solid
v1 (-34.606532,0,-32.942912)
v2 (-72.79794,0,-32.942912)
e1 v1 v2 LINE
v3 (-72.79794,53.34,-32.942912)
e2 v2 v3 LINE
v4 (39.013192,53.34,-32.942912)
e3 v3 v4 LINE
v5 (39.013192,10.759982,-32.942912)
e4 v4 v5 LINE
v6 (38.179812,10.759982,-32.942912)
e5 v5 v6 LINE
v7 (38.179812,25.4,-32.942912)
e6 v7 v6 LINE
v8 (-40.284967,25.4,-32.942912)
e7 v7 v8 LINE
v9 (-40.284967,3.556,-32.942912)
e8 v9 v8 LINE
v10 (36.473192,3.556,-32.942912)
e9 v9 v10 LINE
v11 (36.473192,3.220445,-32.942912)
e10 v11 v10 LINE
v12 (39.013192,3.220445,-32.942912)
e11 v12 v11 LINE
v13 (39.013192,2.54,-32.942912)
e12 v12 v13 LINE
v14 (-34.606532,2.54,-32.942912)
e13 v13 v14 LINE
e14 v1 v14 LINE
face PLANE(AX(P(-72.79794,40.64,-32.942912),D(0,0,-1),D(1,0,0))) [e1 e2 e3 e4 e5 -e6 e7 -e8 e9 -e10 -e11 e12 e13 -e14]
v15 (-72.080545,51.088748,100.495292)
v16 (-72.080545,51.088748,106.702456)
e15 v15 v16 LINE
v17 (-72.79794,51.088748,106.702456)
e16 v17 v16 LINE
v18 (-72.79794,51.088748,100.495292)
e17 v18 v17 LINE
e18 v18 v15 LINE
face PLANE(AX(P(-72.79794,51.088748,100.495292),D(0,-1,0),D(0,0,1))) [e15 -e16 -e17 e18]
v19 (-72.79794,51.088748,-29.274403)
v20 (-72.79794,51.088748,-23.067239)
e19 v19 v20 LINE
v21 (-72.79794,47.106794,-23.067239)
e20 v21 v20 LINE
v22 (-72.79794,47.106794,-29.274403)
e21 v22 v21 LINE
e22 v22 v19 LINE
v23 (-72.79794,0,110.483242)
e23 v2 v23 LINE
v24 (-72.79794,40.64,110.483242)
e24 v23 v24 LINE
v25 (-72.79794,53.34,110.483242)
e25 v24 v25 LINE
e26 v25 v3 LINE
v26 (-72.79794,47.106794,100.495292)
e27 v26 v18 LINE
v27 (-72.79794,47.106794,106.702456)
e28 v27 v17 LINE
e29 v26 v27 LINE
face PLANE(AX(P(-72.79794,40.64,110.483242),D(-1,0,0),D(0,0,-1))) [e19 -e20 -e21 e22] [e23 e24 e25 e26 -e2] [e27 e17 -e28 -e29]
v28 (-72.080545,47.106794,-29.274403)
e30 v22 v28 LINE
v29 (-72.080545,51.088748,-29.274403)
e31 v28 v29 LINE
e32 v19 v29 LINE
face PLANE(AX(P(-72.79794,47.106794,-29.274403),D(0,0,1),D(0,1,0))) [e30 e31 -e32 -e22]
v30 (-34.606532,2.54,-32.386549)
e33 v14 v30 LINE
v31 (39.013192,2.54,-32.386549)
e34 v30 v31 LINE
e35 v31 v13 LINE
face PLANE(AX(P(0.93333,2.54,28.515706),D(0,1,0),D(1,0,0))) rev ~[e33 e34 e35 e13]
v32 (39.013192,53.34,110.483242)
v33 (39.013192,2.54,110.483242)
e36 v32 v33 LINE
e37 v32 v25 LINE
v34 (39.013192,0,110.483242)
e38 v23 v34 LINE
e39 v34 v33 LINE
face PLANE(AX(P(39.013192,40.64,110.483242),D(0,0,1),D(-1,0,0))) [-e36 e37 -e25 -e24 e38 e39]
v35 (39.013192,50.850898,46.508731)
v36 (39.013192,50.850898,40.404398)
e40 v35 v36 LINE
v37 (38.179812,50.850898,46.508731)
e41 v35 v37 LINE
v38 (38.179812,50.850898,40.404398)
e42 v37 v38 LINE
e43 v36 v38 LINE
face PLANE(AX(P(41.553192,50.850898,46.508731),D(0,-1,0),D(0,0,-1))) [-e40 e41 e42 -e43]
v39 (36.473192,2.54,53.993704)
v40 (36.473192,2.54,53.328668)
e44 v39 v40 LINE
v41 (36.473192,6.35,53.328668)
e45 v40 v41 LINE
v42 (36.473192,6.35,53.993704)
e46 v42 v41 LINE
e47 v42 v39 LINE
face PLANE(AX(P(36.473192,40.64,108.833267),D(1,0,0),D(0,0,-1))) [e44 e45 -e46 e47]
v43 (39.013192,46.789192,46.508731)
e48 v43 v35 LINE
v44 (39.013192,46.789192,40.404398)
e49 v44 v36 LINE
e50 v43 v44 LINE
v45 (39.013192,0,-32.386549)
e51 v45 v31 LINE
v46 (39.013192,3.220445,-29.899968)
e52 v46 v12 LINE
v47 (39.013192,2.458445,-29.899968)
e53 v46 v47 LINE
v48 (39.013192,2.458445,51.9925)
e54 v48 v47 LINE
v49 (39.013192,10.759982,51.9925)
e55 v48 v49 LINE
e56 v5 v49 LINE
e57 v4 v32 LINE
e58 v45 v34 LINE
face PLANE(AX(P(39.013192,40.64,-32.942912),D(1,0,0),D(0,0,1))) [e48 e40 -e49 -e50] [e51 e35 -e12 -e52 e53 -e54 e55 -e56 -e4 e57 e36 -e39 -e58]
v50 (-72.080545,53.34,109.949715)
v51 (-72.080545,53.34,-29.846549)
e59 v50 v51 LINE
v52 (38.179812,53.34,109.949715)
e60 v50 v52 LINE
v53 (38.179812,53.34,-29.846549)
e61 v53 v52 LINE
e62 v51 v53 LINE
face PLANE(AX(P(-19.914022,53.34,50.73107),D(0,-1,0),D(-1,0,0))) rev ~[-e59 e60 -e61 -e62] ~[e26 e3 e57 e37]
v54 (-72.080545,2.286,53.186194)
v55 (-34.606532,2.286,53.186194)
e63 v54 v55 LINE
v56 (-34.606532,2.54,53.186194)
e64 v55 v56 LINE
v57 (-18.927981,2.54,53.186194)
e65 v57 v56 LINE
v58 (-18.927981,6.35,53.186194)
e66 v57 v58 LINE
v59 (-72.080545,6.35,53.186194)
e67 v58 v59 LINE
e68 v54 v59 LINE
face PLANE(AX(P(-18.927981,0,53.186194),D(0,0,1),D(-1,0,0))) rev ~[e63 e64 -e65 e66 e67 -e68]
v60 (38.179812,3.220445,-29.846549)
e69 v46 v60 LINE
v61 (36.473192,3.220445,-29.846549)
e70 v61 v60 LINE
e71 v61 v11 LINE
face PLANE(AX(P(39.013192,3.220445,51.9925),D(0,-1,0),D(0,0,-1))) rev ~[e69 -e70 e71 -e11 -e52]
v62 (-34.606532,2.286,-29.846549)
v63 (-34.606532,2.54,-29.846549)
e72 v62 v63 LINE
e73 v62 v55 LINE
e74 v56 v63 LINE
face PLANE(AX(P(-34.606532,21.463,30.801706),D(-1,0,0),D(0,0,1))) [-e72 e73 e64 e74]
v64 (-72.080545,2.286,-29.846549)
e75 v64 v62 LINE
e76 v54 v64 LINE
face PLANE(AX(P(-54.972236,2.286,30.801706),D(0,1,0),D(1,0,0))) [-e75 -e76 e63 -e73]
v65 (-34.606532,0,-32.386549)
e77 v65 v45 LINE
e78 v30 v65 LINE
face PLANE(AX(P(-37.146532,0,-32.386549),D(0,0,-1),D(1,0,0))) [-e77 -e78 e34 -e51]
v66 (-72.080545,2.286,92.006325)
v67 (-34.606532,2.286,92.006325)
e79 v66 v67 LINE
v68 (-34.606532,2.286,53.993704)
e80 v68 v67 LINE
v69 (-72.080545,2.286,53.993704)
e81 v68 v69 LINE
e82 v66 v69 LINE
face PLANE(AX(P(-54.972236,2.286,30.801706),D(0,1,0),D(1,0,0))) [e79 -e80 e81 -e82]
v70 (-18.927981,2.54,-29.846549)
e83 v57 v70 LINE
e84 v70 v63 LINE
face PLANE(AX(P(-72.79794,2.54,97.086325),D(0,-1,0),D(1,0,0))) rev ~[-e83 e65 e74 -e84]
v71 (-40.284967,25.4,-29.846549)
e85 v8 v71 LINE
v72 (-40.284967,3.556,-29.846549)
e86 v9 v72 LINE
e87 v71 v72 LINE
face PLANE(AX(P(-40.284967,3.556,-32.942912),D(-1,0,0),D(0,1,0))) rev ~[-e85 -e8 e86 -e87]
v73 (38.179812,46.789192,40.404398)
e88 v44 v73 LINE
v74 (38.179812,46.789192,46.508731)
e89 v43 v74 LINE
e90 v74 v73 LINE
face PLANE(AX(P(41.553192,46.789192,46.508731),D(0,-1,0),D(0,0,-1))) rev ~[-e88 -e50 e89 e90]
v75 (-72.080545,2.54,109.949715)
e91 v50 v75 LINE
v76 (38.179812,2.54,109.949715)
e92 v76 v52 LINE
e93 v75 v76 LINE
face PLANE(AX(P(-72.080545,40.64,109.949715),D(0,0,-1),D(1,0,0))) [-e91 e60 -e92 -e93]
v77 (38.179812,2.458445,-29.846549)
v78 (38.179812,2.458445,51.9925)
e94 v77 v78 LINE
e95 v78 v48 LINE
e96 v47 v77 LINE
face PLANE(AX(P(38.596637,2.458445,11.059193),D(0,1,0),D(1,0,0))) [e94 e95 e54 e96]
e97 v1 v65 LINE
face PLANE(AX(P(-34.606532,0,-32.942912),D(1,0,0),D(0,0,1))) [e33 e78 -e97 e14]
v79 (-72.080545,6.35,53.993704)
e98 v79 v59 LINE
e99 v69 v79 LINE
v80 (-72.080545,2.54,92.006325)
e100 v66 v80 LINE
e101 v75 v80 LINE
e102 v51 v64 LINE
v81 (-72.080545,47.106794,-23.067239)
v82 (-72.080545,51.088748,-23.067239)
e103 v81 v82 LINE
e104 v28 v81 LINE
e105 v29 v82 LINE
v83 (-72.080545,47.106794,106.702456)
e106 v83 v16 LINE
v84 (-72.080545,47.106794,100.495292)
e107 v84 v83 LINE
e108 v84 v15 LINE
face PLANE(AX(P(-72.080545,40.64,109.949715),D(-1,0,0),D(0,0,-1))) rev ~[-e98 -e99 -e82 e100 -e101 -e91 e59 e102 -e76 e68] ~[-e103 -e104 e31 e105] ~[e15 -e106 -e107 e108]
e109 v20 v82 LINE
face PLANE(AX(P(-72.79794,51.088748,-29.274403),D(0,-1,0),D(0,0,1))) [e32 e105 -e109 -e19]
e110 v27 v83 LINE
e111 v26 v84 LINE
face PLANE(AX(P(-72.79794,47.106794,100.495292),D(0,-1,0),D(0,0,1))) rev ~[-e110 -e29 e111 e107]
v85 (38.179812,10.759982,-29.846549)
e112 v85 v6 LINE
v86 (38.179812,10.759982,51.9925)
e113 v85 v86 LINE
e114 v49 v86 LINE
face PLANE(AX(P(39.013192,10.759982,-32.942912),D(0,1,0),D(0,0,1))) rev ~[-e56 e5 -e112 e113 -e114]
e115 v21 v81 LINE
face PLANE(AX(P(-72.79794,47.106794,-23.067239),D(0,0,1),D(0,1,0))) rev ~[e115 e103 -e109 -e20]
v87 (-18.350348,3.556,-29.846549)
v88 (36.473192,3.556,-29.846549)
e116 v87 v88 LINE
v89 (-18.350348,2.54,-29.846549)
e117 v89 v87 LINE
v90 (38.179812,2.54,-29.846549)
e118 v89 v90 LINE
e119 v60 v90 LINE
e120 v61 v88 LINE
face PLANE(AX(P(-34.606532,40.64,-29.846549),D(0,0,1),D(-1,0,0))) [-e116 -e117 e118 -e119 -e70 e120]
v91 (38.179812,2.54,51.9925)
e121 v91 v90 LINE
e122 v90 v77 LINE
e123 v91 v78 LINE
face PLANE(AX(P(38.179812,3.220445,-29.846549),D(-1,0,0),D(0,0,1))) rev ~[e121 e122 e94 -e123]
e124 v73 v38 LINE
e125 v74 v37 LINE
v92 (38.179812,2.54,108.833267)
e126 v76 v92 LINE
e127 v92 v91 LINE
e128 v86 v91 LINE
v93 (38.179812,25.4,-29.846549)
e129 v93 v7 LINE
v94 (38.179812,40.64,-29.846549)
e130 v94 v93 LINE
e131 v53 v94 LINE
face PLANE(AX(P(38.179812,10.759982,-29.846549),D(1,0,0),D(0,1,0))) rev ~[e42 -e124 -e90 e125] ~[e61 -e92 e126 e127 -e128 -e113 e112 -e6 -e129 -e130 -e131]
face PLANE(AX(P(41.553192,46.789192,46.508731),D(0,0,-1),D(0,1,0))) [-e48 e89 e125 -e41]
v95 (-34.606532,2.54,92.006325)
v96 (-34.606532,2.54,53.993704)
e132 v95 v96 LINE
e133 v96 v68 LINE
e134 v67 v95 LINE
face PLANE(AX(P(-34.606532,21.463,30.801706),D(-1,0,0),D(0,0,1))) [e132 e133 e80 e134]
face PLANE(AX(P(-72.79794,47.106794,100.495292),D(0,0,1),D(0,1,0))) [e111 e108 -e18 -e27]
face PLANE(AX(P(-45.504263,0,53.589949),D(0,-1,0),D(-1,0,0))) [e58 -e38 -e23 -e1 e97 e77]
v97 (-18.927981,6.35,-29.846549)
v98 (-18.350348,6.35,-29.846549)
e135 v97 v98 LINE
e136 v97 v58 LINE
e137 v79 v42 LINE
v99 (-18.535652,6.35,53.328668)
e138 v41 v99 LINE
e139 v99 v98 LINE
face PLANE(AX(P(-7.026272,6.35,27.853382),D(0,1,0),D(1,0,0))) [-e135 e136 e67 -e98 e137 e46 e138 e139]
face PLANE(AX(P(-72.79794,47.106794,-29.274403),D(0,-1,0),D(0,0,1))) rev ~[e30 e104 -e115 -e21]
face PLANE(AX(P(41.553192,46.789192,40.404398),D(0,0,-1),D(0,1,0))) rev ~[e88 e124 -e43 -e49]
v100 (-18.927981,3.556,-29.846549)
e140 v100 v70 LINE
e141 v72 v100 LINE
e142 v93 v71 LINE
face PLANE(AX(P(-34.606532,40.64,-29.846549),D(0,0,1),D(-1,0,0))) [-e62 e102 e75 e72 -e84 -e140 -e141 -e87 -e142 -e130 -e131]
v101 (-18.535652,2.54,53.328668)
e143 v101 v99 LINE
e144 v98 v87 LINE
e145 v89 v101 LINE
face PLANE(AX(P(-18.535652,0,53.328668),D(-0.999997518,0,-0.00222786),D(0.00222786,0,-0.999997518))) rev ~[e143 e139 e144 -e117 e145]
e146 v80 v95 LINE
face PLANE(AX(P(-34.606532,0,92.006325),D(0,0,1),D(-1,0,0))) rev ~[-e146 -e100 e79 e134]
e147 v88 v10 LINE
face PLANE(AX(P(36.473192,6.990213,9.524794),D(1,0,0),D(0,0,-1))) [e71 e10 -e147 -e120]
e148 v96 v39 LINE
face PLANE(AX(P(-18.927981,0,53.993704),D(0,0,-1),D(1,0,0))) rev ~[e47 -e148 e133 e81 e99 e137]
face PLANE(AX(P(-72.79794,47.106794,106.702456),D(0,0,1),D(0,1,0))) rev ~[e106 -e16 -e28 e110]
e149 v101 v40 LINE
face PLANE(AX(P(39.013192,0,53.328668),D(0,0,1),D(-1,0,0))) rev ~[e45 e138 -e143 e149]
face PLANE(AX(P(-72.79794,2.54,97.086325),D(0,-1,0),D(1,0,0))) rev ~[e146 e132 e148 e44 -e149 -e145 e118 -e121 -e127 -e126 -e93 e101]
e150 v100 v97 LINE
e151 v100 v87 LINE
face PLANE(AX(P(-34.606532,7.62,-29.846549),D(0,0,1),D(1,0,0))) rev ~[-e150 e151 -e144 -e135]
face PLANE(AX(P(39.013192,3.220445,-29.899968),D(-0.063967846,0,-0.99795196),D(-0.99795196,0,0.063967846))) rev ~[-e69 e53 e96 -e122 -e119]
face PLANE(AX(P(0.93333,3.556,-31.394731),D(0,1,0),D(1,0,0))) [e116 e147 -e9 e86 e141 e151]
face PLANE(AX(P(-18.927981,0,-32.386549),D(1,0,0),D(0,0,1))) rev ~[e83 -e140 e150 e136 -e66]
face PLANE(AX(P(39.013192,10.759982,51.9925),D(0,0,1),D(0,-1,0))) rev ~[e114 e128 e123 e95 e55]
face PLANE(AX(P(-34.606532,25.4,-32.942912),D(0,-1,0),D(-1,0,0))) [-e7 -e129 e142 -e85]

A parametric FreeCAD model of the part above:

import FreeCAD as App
import Part
import Sketcher
Q = App.Units.Quantity


def faces_at(feature, points):
    """Names of the faces that lie closest to the given points."""
    faces = feature.Shape.Faces
    near = lambda p: min(range(len(faces)), key=lambda i: faces[i].distToShape(Part.Vertex(*p))[0])
    return sorted({f"Face{near(p) + 1}" for p in points})

doc = App.newDocument("Part")
body = doc.addObject("PartDesign::Body", "Body")

sketch1 = body.newObject("Sketcher::SketchObject", "Sketch")
sketch1.AttachmentSupport = (doc.getObject("XZ_Plane"), [""])
sketch1.MapMode = "FlatFace"
sketch1.addGeometry([
    Part.LineSegment(App.Vector(-37, -32, 0), App.Vector(-37, 95, 0)),
    Part.LineSegment(App.Vector(-37, 95, 0), App.Vector(39, 95, 0)),
    Part.LineSegment(App.Vector(39, 95, 0), App.Vector(39, -32, 0)),
    Part.LineSegment(App.Vector(39, -32, 0), App.Vector(-37, -32, 0)),
], False)
sketch1.addConstraint([
    Sketcher.Constraint("Coincident", 0, 2, 1, 1),
    Sketcher.Constraint("Coincident", 1, 2, 2, 1),
    Sketcher.Constraint("Coincident", 2, 2, 3, 1),
    Sketcher.Constraint("Coincident", 3, 2, 0, 1),
    Sketcher.Constraint("Vertical", 0),
    Sketcher.Constraint("Horizontal", 1),
    Sketcher.Constraint("Vertical", 2),
    Sketcher.Constraint("Horizontal", 3),
    Sketcher.Constraint("DistanceX", 1, 1, 1, 2, 76.159724),
    Sketcher.Constraint("DistanceY", 0, 1, 0, 2, 126.932874),
    Sketcher.Constraint("DistanceY", 2, 2, -1, 1, 32.386549),
    Sketcher.Constraint("DistanceX", 0, 2, -1, 1, 37.146532),
])
pad1 = body.newObject("PartDesign::Pad", "Pad")
pad1.Profile = sketch1
pad1.Length = Q("0.1 in")
pad1.Reversed = True

sketch2 = body.newObject("Sketcher::SketchObject", "Sketch001")
sketch2.AttachmentSupport = (doc.getObject("XZ_Plane"), [""])
sketch2.MapMode = "FlatFace"
sketch2.AttachmentOffset = App.Placement(App.Vector(0, 0, -0.1 * 25.4), App.Rotation())
sketch2.addGeometry([
    Part.LineSegment(App.Vector(-37, 95, 0), App.Vector(39, 95, 0)),
    Part.LineSegment(App.Vector(39, 95, 0), App.Vector(39, -38, 0)),
    Part.LineSegment(App.Vector(39, -38, 0), App.Vector(-37, -38, 0)),
    Part.LineSegment(App.Vector(-37, -38, 0), App.Vector(-37, 95, 0)),
], False)
sketch2.addConstraint([
    Sketcher.Constraint("Coincident", 0, 2, 1, 1),
    Sketcher.Constraint("Coincident", 1, 2, 2, 1),
    Sketcher.Constraint("Coincident", 2, 2, 3, 1),
    Sketcher.Constraint("Coincident", 3, 2, 0, 1),
    Sketcher.Constraint("Horizontal", 0),
    Sketcher.Constraint("Vertical", 1),
    Sketcher.Constraint("Horizontal", 2),
    Sketcher.Constraint("Vertical", 3),
    Sketcher.Constraint("DistanceX", 0, 1, 0, 2, 76.159724),
    Sketcher.Constraint("DistanceY", 1, 2, 1, 1, 132.061237),
    Sketcher.Constraint("DistanceX", -1, 1, 0, 2, 39.013192),
    Sketcher.Constraint("DistanceY", -1, 1, 0, 2, 94.546325),
])
pad2 = body.newObject("PartDesign::Pad", "Pad001")
pad2.Profile = sketch2
pad2.Length = Q("1.5 in")
pad2.Reversed = True
doc.recompute()

thickness = body.newObject("PartDesign::Thickness", "Thickness")
thickness.Base = (pad2, faces_at(pad2, [(0.933, 40.64, 28.516)]))
thickness.Value = Q("0.1 in")
thickness.Reversed = True
thickness.Join = "Intersection"

sketch3 = body.newObject("Sketcher::SketchObject", "Sketch002")
sketch3.AttachmentSupport = (doc.getObject("XZ_Plane"), [""])
sketch3.MapMode = "FlatFace"
sketch3.addGeometry([
    Part.LineSegment(App.Vector(39, 54, 0), App.Vector(39, 53.3, 0)),
    Part.LineSegment(App.Vector(39, 53.3, 0), App.Vector(-18.5, 53.3, 0)),
    Part.LineSegment(App.Vector(-18.5, 53.3, 0), App.Vector(-18.3, -32.4, 0)),
    Part.LineSegment(App.Vector(-18.3, -32.4, 0), App.Vector(-18.9, -32.4, 0)),
    Part.LineSegment(App.Vector(-18.9, -32.4, 0), App.Vector(-18.9, 54, 0)),
    Part.LineSegment(App.Vector(-18.9, 54, 0), App.Vector(39, 54, 0)),
], False)
sketch3.addConstraint([
    Sketcher.Constraint("Coincident", 0, 2, 1, 1),
    Sketcher.Constraint("Coincident", 1, 2, 2, 1),
    Sketcher.Constraint("Coincident", 2, 2, 3, 1),
    Sketcher.Constraint("Coincident", 3, 2, 4, 1),
    Sketcher.Constraint("Coincident", 4, 2, 5, 1),
    Sketcher.Constraint("Coincident", 5, 2, 0, 1),
    Sketcher.Constraint("Vertical", 0),
    Sketcher.Constraint("Horizontal", 1),
    Sketcher.Constraint("Horizontal", 3),
    Sketcher.Constraint("Vertical", 4),
    Sketcher.Constraint("Horizontal", 5),
    Sketcher.Constraint("DistanceX", 3, 2, 3, 1, 0.583292),
    Sketcher.Constraint("Distance", 2, 85.71543),
    Sketcher.Constraint("DistanceX", 1, 2, 1, 1, 57.548844),
    Sketcher.Constraint("DistanceX", 5, 1, 5, 2, 57.941174),
    Sketcher.Constraint("DistanceY", 0, 2, 0, 1, 0.665036),
    Sketcher.Constraint("DistanceX", 1, 2, -1, 1, 18.535652),
    Sketcher.Constraint("DistanceY", 2, 2, -1, 1, 32.386549),
])
pad3 = body.newObject("PartDesign::Pad", "Pad002")
pad3.Profile = sketch3
pad3.Length = Q("0.25 in")
pad3.Reversed = True

sketch4 = body.newObject("Sketcher::SketchObject", "Sketch003")
sketch4.AttachmentSupport = (doc.getObject("XY_Plane"), [""])
sketch4.MapMode = "FlatFace"
sketch4.AttachmentOffset = App.Placement(App.Vector(0, 0, -40.054912), App.Rotation())
sketch4.addGeometry([
    Part.LineSegment(App.Vector(39, 41, 0), App.Vector(39, 0, 0)),
    Part.LineSegment(App.Vector(39, 0, 0), App.Vector(-37, 0, 0)),
    Part.LineSegment(App.Vector(-37, 0, 0), App.Vector(-37, 41, 0)),
    Part.LineSegment(App.Vector(-37, 41, 0), App.Vector(39, 41, 0)),
], False)
sketch4.addConstraint([
    Sketcher.Constraint("Coincident", 0, 2, 1, 1),
    Sketcher.Constraint("Coincident", 1, 2, 2, 1),
    Sketcher.Constraint("Coincident", 2, 2, 3, 1),
    Sketcher.Constraint("Coincident", 3, 2, 0, 1),
    Sketcher.Constraint("Vertical", 0),
    Sketcher.Constraint("Horizontal", 1),
    Sketcher.Constraint("Vertical", 2),
    Sketcher.Constraint("Horizontal", 3),
    Sketcher.Constraint("PointOnObject", 0, 2, -1),
    Sketcher.Constraint("DistanceY", 0, 2, 0, 1, Q("1.6 in")),
    Sketcher.Constraint("DistanceX", 1, 2, 1, 1, 76.159724),
    Sketcher.Constraint("DistanceX", -1, 1, 0, 2, 39.013192),
])
pocket1 = body.newObject("PartDesign::Pocket", "Pocket")
pocket1.Profile = sketch4
pocket1.Length = Q("0.28 in")
pocket1.Reversed = True

sketch5 = body.newObject("Sketcher::SketchObject", "Sketch004")
sketch5.AttachmentSupport = (doc.getObject("XZ_Plane"), [""])
sketch5.MapMode = "FlatFace"
sketch5.AttachmentOffset = App.Placement(App.Vector(0, 0, -0.3 * 25.4), App.Rotation())
sketch5.addGeometry([
    Part.LineSegment(App.Vector(-34.6, -32.9, 0), App.Vector(-34.6, -29.8, 0)),
    Part.LineSegment(App.Vector(-34.6, -29.8, 0), App.Vector(36.5, -29.8, 0)),
    Part.LineSegment(App.Vector(36.5, -29.8, 0), App.Vector(36.5, -32.9, 0)),
    Part.LineSegment(App.Vector(36.5, -32.9, 0), App.Vector(-34.6, -32.9, 0)),
], False)
sketch5.addConstraint([
    Sketcher.Constraint("Coincident", 0, 2, 1, 1),
    Sketcher.Constraint("Coincident", 1, 2, 2, 1),
    Sketcher.Constraint("Coincident", 2, 2, 3, 1),
    Sketcher.Constraint("Coincident", 3, 2, 0, 1),
    Sketcher.Constraint("Vertical", 0),
    Sketcher.Constraint("Horizontal", 1),
    Sketcher.Constraint("Vertical", 2),
    Sketcher.Constraint("Horizontal", 3),
    Sketcher.Constraint("DistanceX", 1, 1, 1, 2, 71.079724),
    Sketcher.Constraint("DistanceY", 0, 1, 0, 2, 3.096363),
    Sketcher.Constraint("DistanceY", 0, 2, -1, 1, 29.846549),
    Sketcher.Constraint("DistanceX", 0, 2, -1, 1, 34.606532),
])
pocket2 = body.newObject("PartDesign::Pocket", "Pocket001")
pocket2.Profile = sketch5
pocket2.Length = Q("0.16 in")
pocket2.Reversed = True

sketch6 = body.newObject("Sketcher::SketchObject", "Sketch005")
sketch6.AttachmentSupport = (doc.getObject("XZ_Plane"), [""])
sketch6.MapMode = "FlatFace"
sketch6.addGeometry([
    Part.LineSegment(App.Vector(-73, -33, 0), App.Vector(-73, 95, 0)),
    Part.LineSegment(App.Vector(-73, 95, 0), App.Vector(-37, 95, 0)),
    Part.LineSegment(App.Vector(-37, 95, 0), App.Vector(-37, -33, 0)),
    Part.LineSegment(App.Vector(-37, -33, 0), App.Vector(-73, -33, 0)),
], False)
sketch6.addConstraint([
    Sketcher.Constraint("Coincident", 0, 2, 1, 1),
    Sketcher.Constraint("Coincident", 1, 2, 2, 1),
    Sketcher.Constraint("Coincident", 2, 2, 3, 1),
    Sketcher.Constraint("Coincident", 3, 2, 0, 1),
    Sketcher.Constraint("Vertical", 0),
    Sketcher.Constraint("Horizontal", 1),
    Sketcher.Constraint("Vertical", 2),
    Sketcher.Constraint("Horizontal", 3),
    Sketcher.Constraint("DistanceX", 1, 1, 1, 2, 35.651408),
    Sketcher.Constraint("DistanceY", 0, 1, 0, 2, 127.489237),
    Sketcher.Constraint("DistanceX", 0, 2, -1, 1, 72.79794),
    Sketcher.Constraint("DistanceY", -1, 1, 0, 2, 94.546325),
])
pad4 = body.newObject("PartDesign::Pad", "Pad003")
pad4.Profile = sketch6
pad4.Length = Q("0.09 in")
pad4.Reversed = True

sketch7 = body.newObject("Sketcher::SketchObject", "Sketch006")
sketch7.AttachmentSupport = (doc.getObject("YZ_Plane"), [""])
sketch7.MapMode = "FlatFace"
sketch7.AttachmentOffset = App.Placement(App.Vector(0, 0, -37.146532), App.Rotation())
sketch7.addGeometry([
    Part.LineSegment(App.Vector(41, -33, 0), App.Vector(2, -33, 0)),
    Part.LineSegment(App.Vector(2, -33, 0), App.Vector(2, 95, 0)),
    Part.LineSegment(App.Vector(2, 95, 0), App.Vector(41, 95, 0)),
    Part.LineSegment(App.Vector(41, 95, 0), App.Vector(41, -33, 0)),
], False)
sketch7.addConstraint([
    Sketcher.Constraint("Coincident", 0, 2, 1, 1),
    Sketcher.Constraint("Coincident", 1, 2, 2, 1),
    Sketcher.Constraint("Coincident", 2, 2, 3, 1),
    Sketcher.Constraint("Coincident", 3, 2, 0, 1),
    Sketcher.Constraint("Horizontal", 0),
    Sketcher.Constraint("Vertical", 1),
    Sketcher.Constraint("Horizontal", 2),
    Sketcher.Constraint("Vertical", 3),
    Sketcher.Constraint("DistanceX", 0, 2, 0, 1, Q("1.51 in")),
    Sketcher.Constraint("DistanceX", -1, 1, 2, 2, Q("1.6 in")),
    Sketcher.Constraint("DistanceY", 1, 1, 1, 2, 127.489237),
    Sketcher.Constraint("DistanceY", 0, 2, -1, 1, 32.942912),
])
pocket3 = body.newObject("PartDesign::Pocket", "Pocket002")
pocket3.Profile = sketch7
pocket3.Length = Q("0.1 in")
pocket3.Reversed = True

sketch8 = body.newObject("Sketcher::SketchObject", "Sketch007")
sketch8.AttachmentSupport = (doc.getObject("XZ_Plane"), [""])
sketch8.MapMode = "FlatFace"
sketch8.addGeometry([
    Part.LineSegment(App.Vector(-72.8, 94.5, 0), App.Vector(-34.6, 94.5, 0)),
    Part.LineSegment(App.Vector(-34.6, 94.5, 0), App.Vector(-34.6, 92, 0)),
    Part.LineSegment(App.Vector(-34.6, 92, 0), App.Vector(-72.1, 92, 0)),
    Part.LineSegment(App.Vector(-72.1, 92, 0), App.Vector(-72.1, -29.8, 0)),
    Part.LineSegment(App.Vector(-72.1, -29.8, 0), App.Vector(-34.6, -29.8, 0)),
    Part.LineSegment(App.Vector(-34.6, -29.8, 0), App.Vector(-34.6, -32.9, 0)),
    Part.LineSegment(App.Vector(-34.6, -32.9, 0), App.Vector(-72.8, -32.9, 0)),
    Part.LineSegment(App.Vector(-72.8, -32.9, 0), App.Vector(-72.8, 94.5, 0)),
], False)
sketch8.addConstraint([
    Sketcher.Constraint("Coincident", 0, 2, 1, 1),
    Sketcher.Constraint("Coincident", 1, 2, 2, 1),
    Sketcher.Constraint("Coincident", 2, 2, 3, 1),
    Sketcher.Constraint("Coincident", 3, 2, 4, 1),
    Sketcher.Constraint("Coincident", 4, 2, 5, 1),
    Sketcher.Constraint("Coincident", 5, 2, 6, 1),
    Sketcher.Constraint("Coincident", 6, 2, 7, 1),
    Sketcher.Constraint("Coincident", 7, 2, 0, 1),
    Sketcher.Constraint("Horizontal", 0),
    Sketcher.Constraint("Vertical", 1),
    Sketcher.Constraint("Horizontal", 2),
    Sketcher.Constraint("Vertical", 3),
    Sketcher.Constraint("Horizontal", 4),
    Sketcher.Constraint("Vertical", 5),
    Sketcher.Constraint("Horizontal", 6),
    Sketcher.Constraint("Vertical", 7),
    Sketcher.Constraint("Vertical", 1, 2, 4, 2),
    Sketcher.Constraint("DistanceY", 1, 2, 1, 1, Q("0.1 in")),
    Sketcher.Constraint("DistanceX", 0, 1, 0, 2, 38.191408),
    Sketcher.Constraint("DistanceX", 2, 2, 2, 1, 37.474013),
    Sketcher.Constraint("DistanceY", 3, 2, 3, 1, 121.852874),
    Sketcher.Constraint("DistanceY", 5, 2, 5, 1, 3.096363),
    Sketcher.Constraint("DistanceY", 3, 2, -1, 1, 29.846549),
    Sketcher.Constraint("DistanceX", 6, 2, -1, 1, 72.79794),
])
pad5 = body.newObject("PartDesign::Pad", "Pad004")
pad5.Profile = sketch8
pad5.Length = Q("1.6 in")
pad5.Reversed = True

sketch9 = body.newObject("Sketcher::SketchObject", "Sketch008")
sketch9.AttachmentSupport = (doc.getObject("XZ_Plane"), [""])
sketch9.MapMode = "FlatFace"
sketch9.addGeometry([
    Part.LineSegment(App.Vector(-73, 95, 0), App.Vector(-73, 110, 0)),
    Part.LineSegment(App.Vector(-73, 110, 0), App.Vector(39, 110, 0)),
    Part.LineSegment(App.Vector(39, 110, 0), App.Vector(39, 95, 0)),
    Part.LineSegment(App.Vector(39, 95, 0), App.Vector(-73, 95, 0)),
], False)
sketch9.addConstraint([
    Sketcher.Constraint("Coincident", 0, 2, 1, 1),
    Sketcher.Constraint("Coincident", 1, 2, 2, 1),
    Sketcher.Constraint("Coincident", 2, 2, 3, 1),
    Sketcher.Constraint("Coincident", 3, 2, 0, 1),
    Sketcher.Constraint("Vertical", 0),
    Sketcher.Constraint("Horizontal", 1),
    Sketcher.Constraint("Vertical", 2),
    Sketcher.Constraint("Horizontal", 3),
    Sketcher.Constraint("DistanceX", 1, 1, 1, 2, 111.811132),
    Sketcher.Constraint("DistanceY", 0, 1, 0, 2, 15.936917),
    Sketcher.Constraint("DistanceX", 0, 2, -1, 1, 72.79794),
    Sketcher.Constraint("DistanceY", -1, 1, 0, 2, 110.483242),
])
pad6 = body.newObject("PartDesign::Pad", "Pad005")
pad6.Profile = sketch9
pad6.Length = Q("0.1 in")
pad6.Reversed = True

sketch10 = body.newObject("Sketcher::SketchObject", "Sketch009")
sketch10.AttachmentSupport = (doc.getObject("XY_Plane"), [""])
sketch10.MapMode = "FlatFace"
sketch10.AttachmentOffset = App.Placement(App.Vector(0, 0, 97.086325), App.Rotation())
sketch10.addGeometry([
    Part.LineSegment(App.Vector(-73, 41, 0), App.Vector(-73, 3, 0)),
    Part.LineSegment(App.Vector(-73, 3, 0), App.Vector(39, 3, 0)),
    Part.LineSegment(App.Vector(39, 3, 0), App.Vector(39, 41, 0)),
    Part.LineSegment(App.Vector(39, 41, 0), App.Vector(-73, 41, 0)),
], False)
sketch10.addConstraint([
    Sketcher.Constraint("Coincident", 0, 2, 1, 1),
    Sketcher.Constraint("Coincident", 1, 2, 2, 1),
    Sketcher.Constraint("Coincident", 2, 2, 3, 1),
    Sketcher.Constraint("Coincident", 3, 2, 0, 1),
    Sketcher.Constraint("Vertical", 0),
    Sketcher.Constraint("Horizontal", 1),
    Sketcher.Constraint("Vertical", 2),
    Sketcher.Constraint("Horizontal", 3),
    Sketcher.Constraint("DistanceY", 0, 2, 0, 1, Q("1.5 in")),
    Sketcher.Constraint("DistanceY", -1, 1, 0, 2, Q("0.1 in")),
    Sketcher.Constraint("DistanceX", 1, 1, 1, 2, 111.811132),
    Sketcher.Constraint("DistanceX", 0, 2, -1, 1, 72.79794),
])
pocket4 = body.newObject("PartDesign::Pocket", "Pocket003")
pocket4.Profile = sketch10
pocket4.Length = Q("0.2 in")

sketch11 = body.newObject("Sketcher::SketchObject", "Sketch010")
sketch11.AttachmentSupport = (doc.getObject("XZ_Plane"), [""])
sketch11.MapMode = "FlatFace"
sketch11.addGeometry([
    Part.LineSegment(App.Vector(-72.8, 92, 0), App.Vector(-72.8, 110.5, 0)),
    Part.LineSegment(App.Vector(-72.8, 110.5, 0), App.Vector(39, 110.5, 0)),
    Part.LineSegment(App.Vector(39, 110.5, 0), App.Vector(39, 92, 0)),
    Part.LineSegment(App.Vector(39, 92, 0), App.Vector(36.5, 92, 0)),
    Part.LineSegment(App.Vector(36.5, 92, 0), App.Vector(36.5, 108.8, 0)),
    Part.LineSegment(App.Vector(36.5, 108.8, 0), App.Vector(-72.1, 108.8, 0)),
    Part.LineSegment(App.Vector(-72.1, 108.8, 0), App.Vector(-72.1, 92, 0)),
    Part.LineSegment(App.Vector(-72.1, 92, 0), App.Vector(-72.8, 92, 0)),
], False)
sketch11.addConstraint([
    Sketcher.Constraint("Coincident", 0, 2, 1, 1),
    Sketcher.Constraint("Coincident", 1, 2, 2, 1),
    Sketcher.Constraint("Coincident", 2, 2, 3, 1),
    Sketcher.Constraint("Coincident", 3, 2, 4, 1),
    Sketcher.Constraint("Coincident", 4, 2, 5, 1),
    Sketcher.Constraint("Coincident", 5, 2, 6, 1),
    Sketcher.Constraint("Coincident", 6, 2, 7, 1),
    Sketcher.Constraint("Coincident", 7, 2, 0, 1),
    Sketcher.Constraint("Vertical", 0),
    Sketcher.Constraint("Horizontal", 1),
    Sketcher.Constraint("Vertical", 2),
    Sketcher.Constraint("Horizontal", 3),
    Sketcher.Constraint("Vertical", 4),
    Sketcher.Constraint("Horizontal", 5),
    Sketcher.Constraint("Vertical", 6),
    Sketcher.Constraint("Horizontal", 7),
    Sketcher.Constraint("Horizontal", 3, 2, 6, 2),
    Sketcher.Constraint("DistanceX", 3, 2, 3, 1, Q("0.1 in")),
    Sketcher.Constraint("DistanceX", 1, 1, 1, 2, 111.811132),
    Sketcher.Constraint("DistanceX", 5, 2, 5, 1, 108.553738),
    Sketcher.Constraint("DistanceY", 0, 1, 0, 2, 18.476917),
    Sketcher.Constraint("DistanceY", 4, 1, 4, 2, 16.826942),
    Sketcher.Constraint("DistanceX", 0, 2, -1, 1, 72.79794),
    Sketcher.Constraint("DistanceY", -1, 1, 0, 2, 110.483242),
])
pad7 = body.newObject("PartDesign::Pad", "Pad006")
pad7.Profile = sketch11
pad7.Length = Q("1.6 in")
pad7.Reversed = True

sketch12 = body.newObject("Sketcher::SketchObject", "Sketch011")
sketch12.AttachmentSupport = (doc.getObject("XZ_Plane"), [""])
sketch12.MapMode = "FlatFace"
sketch12.addGeometry([
    Part.LineSegment(App.Vector(-72.1, 54, 0), App.Vector(-18.9, 54, 0)),
    Part.LineSegment(App.Vector(-18.9, 54, 0), App.Vector(-18.9, 53.2, 0)),
    Part.LineSegment(App.Vector(-18.9, 53.2, 0), App.Vector(-72.1, 53.2, 0)),
    Part.LineSegment(App.Vector(-72.1, 53.2, 0), App.Vector(-72.1, 54, 0)),
], False)
sketch12.addConstraint([
    Sketcher.Constraint("Coincident", 0, 2, 1, 1),
    Sketcher.Constraint("Coincident", 1, 2, 2, 1),
    Sketcher.Constraint("Coincident", 2, 2, 3, 1),
    Sketcher.Constraint("Coincident", 3, 2, 0, 1),
    Sketcher.Constraint("Horizontal", 0),
    Sketcher.Constraint("Vertical", 1),
    Sketcher.Constraint("Horizontal", 2),
    Sketcher.Constraint("Vertical", 3),
    Sketcher.Constraint("DistanceY", 1, 2, 1, 1, 0.80751),
    Sketcher.Constraint("DistanceX", 0, 1, 0, 2, 53.152564),
    Sketcher.Constraint("DistanceX", 0, 2, -1, 1, 18.927981),
    Sketcher.Constraint("DistanceY", -1, 1, 0, 2, 53.993704),
])
pad8 = body.newObject("PartDesign::Pad", "Pad007")
pad8.Profile = sketch12
pad8.Length = Q("0.25 in")
pad8.Reversed = True

sketch13 = body.newObject("Sketcher::SketchObject", "Sketch012")
sketch13.AttachmentSupport = (doc.getObject("XZ_Plane"), [""])
sketch13.MapMode = "FlatFace"
sketch13.AttachmentOffset = App.Placement(App.Vector(0, 0, -1.6 * 25.4), App.Rotation())
sketch13.addGeometry([
    Part.LineSegment(App.Vector(-34.6, -29.8, 0), App.Vector(-34.6, -32.9, 0)),
    Part.LineSegment(App.Vector(-34.6, -32.9, 0), App.Vector(-72.8, -32.9, 0)),
    Part.LineSegment(App.Vector(-72.8, -32.9, 0), App.Vector(-72.8, 110.5, 0)),
    Part.LineSegment(App.Vector(-72.8, 110.5, 0), App.Vector(39, 110.5, 0)),
    Part.LineSegment(App.Vector(39, 110.5, 0), App.Vector(39, -32.9, 0)),
    Part.LineSegment(App.Vector(39, -32.9, 0), App.Vector(38.2, -32.9, 0)),
    Part.LineSegment(App.Vector(38.2, -32.9, 0), App.Vector(38.2, 109.9, 0)),
    Part.LineSegment(App.Vector(38.2, 109.9, 0), App.Vector(-72.1, 109.9, 0)),
    Part.LineSegment(App.Vector(-72.1, 109.9, 0), App.Vector(-72.1, -29.8, 0)),
    Part.LineSegment(App.Vector(-72.1, -29.8, 0), App.Vector(-34.6, -29.8, 0)),
], False)
sketch13.addConstraint([
    Sketcher.Constraint("Coincident", 0, 2, 1, 1),
    Sketcher.Constraint("Coincident", 1, 2, 2, 1),
    Sketcher.Constraint("Coincident", 2, 2, 3, 1),
    Sketcher.Constraint("Coincident", 3, 2, 4, 1),
    Sketcher.Constraint("Coincident", 4, 2, 5, 1),
    Sketcher.Constraint("Coincident", 5, 2, 6, 1),
    Sketcher.Constraint("Coincident", 6, 2, 7, 1),
    Sketcher.Constraint("Coincident", 7, 2, 8, 1),
    Sketcher.Constraint("Coincident", 8, 2, 9, 1),
    Sketcher.Constraint("Coincident", 9, 2, 0, 1),
    Sketcher.Constraint("Vertical", 0),
    Sketcher.Constraint("Horizontal", 1),
    Sketcher.Constraint("Vertical", 2),
    Sketcher.Constraint("Horizontal", 3),
    Sketcher.Constraint("Vertical", 4),
    Sketcher.Constraint("Horizontal", 5),
    Sketcher.Constraint("Vertical", 6),
    Sketcher.Constraint("Horizontal", 7),
    Sketcher.Constraint("Vertical", 8),
    Sketcher.Constraint("Horizontal", 9),
    Sketcher.Constraint("Horizontal", 1, 2, 4, 2),
    Sketcher.Constraint("DistanceX", 5, 2, 5, 1, 0.83338),
    Sketcher.Constraint("DistanceX", 1, 2, 1, 1, 38.191408),
    Sketcher.Constraint("DistanceX", 3, 1, 3, 2, 111.811132),
    Sketcher.Constraint("DistanceX", 7, 2, 7, 1, 110.260357),
    Sketcher.Constraint("DistanceY", 0, 2, 0, 1, 3.096363),
    Sketcher.Constraint("DistanceY", 2, 1, 2, 2, 143.426154),
    Sketcher.Constraint("DistanceY", 6, 1, 6, 2, 142.892627),
    Sketcher.Constraint("DistanceX", 1, 2, -1, 1, 72.79794),
    Sketcher.Constraint("DistanceY", 8, 2, -1, 1, 29.846549),
])
pad9 = body.newObject("PartDesign::Pad", "Pad008")
pad9.Profile = sketch13
pad9.Length = Q("0.5 in")
pad9.Reversed = True

sketch14 = body.newObject("Sketcher::SketchObject", "Sketch013")
sketch14.AttachmentSupport = (doc.getObject("XZ_Plane"), [""])
sketch14.MapMode = "FlatFace"
sketch14.AttachmentOffset = App.Placement(App.Vector(0, 0, -2.1 * 25.4), App.Rotation())
sketch14.addGeometry([
    Part.LineSegment(App.Vector(38.2, -29.8, 0), App.Vector(38.2, -32.9, 0)),
    Part.LineSegment(App.Vector(38.2, -32.9, 0), App.Vector(-39.7, -32.9, 0)),
    Part.LineSegment(App.Vector(-39.7, -32.9, 0), App.Vector(-39.7, -29.8, 0)),
    Part.LineSegment(App.Vector(-39.7, -29.8, 0), App.Vector(38.2, -29.8, 0)),
], False)
sketch14.addConstraint([
    Sketcher.Constraint("Coincident", 0, 2, 1, 1),
    Sketcher.Constraint("Coincident", 1, 2, 2, 1),
    Sketcher.Constraint("Coincident", 2, 2, 3, 1),
    Sketcher.Constraint("Coincident", 3, 2, 0, 1),
    Sketcher.Constraint("Vertical", 0),
    Sketcher.Constraint("Horizontal", 1),
    Sketcher.Constraint("Vertical", 2),
    Sketcher.Constraint("Horizontal", 3),
    Sketcher.Constraint("DistanceX", 1, 2, 1, 1, 77.905136),
    Sketcher.Constraint("DistanceY", 0, 2, 0, 1, 3.096363),
    Sketcher.Constraint("DistanceX", -1, 1, 0, 2, 38.179812),
    Sketcher.Constraint("DistanceY", 2, 2, -1, 1, 29.846549),
])
pad10 = body.newObject("PartDesign::Pad", "Pad009")
pad10.Profile = sketch14
pad10.Length = Q("1.1 in")

sketch15 = body.newObject("Sketcher::SketchObject", "Sketch014")
sketch15.AttachmentSupport = (doc.getObject("YZ_Plane"), [""])
sketch15.MapMode = "FlatFace"
sketch15.AttachmentOffset = App.Placement(App.Vector(0, 0, -72.79794), App.Rotation())
sketch15.addGeometry([
    Part.LineSegment(App.Vector(51.1, 100.5, 0), App.Vector(47.1, 100.5, 0)),
    Part.LineSegment(App.Vector(47.1, 100.5, 0), App.Vector(47.1, 106.7, 0)),
    Part.LineSegment(App.Vector(47.1, 106.7, 0), App.Vector(51.1, 106.7, 0)),
    Part.LineSegment(App.Vector(51.1, 106.7, 0), App.Vector(51.1, 100.5, 0)),
    Part.LineSegment(App.Vector(51.1, -29.3, 0), App.Vector(47.1, -29.3, 0)),
    Part.LineSegment(App.Vector(47.1, -29.3, 0), App.Vector(47.1, -23.1, 0)),
    Part.LineSegment(App.Vector(47.1, -23.1, 0), App.Vector(51.1, -23.1, 0)),
    Part.LineSegment(App.Vector(51.1, -23.1, 0), App.Vector(51.1, -29.3, 0)),
], False)
sketch15.addConstraint([
    Sketcher.Constraint("Coincident", 0, 2, 1, 1),
    Sketcher.Constraint("Coincident", 1, 2, 2, 1),
    Sketcher.Constraint("Coincident", 2, 2, 3, 1),
    Sketcher.Constraint("Coincident", 3, 2, 0, 1),
    Sketcher.Constraint("Coincident", 4, 2, 5, 1),
    Sketcher.Constraint("Coincident", 5, 2, 6, 1),
    Sketcher.Constraint("Coincident", 6, 2, 7, 1),
    Sketcher.Constraint("Coincident", 7, 2, 4, 1),
    Sketcher.Constraint("Horizontal", 0),
    Sketcher.Constraint("Vertical", 1),
    Sketcher.Constraint("Horizontal", 2),
    Sketcher.Constraint("Vertical", 3),
    Sketcher.Constraint("Horizontal", 4),
    Sketcher.Constraint("Vertical", 5),
    Sketcher.Constraint("Horizontal", 6),
    Sketcher.Constraint("Vertical", 7),
    Sketcher.Constraint("Vertical", 1, 2, 4, 2),
    Sketcher.Constraint("Vertical", 3, 2, 6, 2),
    Sketcher.Constraint("Equal", 3, 5),
    Sketcher.Constraint("DistanceX", 0, 2, 0, 1, 3.981954),
    Sketcher.Constraint("DistanceY", 1, 1, 1, 2, 6.207164),
    Sketcher.Constraint("DistanceY", 5, 2, -1, 1, 23.067239),
    Sketcher.Constraint("DistanceY", 4, 2, 1, 2, 135.976859),
    Sketcher.Constraint("DistanceX", -1, 1, 0, 2, 47.106794),
])
pocket5 = body.newObject("PartDesign::Pocket", "Pocket004")
pocket5.Profile = sketch15
pocket5.Length = Q("0.6 in")
pocket5.Reversed = True

sketch16 = body.newObject("Sketcher::SketchObject", "Sketch015")
sketch16.AttachmentSupport = (doc.getObject("YZ_Plane"), [""])
sketch16.MapMode = "FlatFace"
sketch16.AttachmentOffset = App.Placement(App.Vector(0, 0, 41.553192), App.Rotation())
sketch16.addGeometry([
    Part.LineSegment(App.Vector(50.9, 46.5, 0), App.Vector(46.8, 46.5, 0)),
    Part.LineSegment(App.Vector(46.8, 46.5, 0), App.Vector(46.8, 40.4, 0)),
    Part.LineSegment(App.Vector(46.8, 40.4, 0), App.Vector(50.9, 40.4, 0)),
    Part.LineSegment(App.Vector(50.9, 40.4, 0), App.Vector(50.9, 46.5, 0)),
], False)
sketch16.addConstraint([
    Sketcher.Constraint("Coincident", 0, 2, 1, 1),
    Sketcher.Constraint("Coincident", 1, 2, 2, 1),
    Sketcher.Constraint("Coincident", 2, 2, 3, 1),
    Sketcher.Constraint("Coincident", 3, 2, 0, 1),
    Sketcher.Constraint("Horizontal", 0),
    Sketcher.Constraint("Vertical", 1),
    Sketcher.Constraint("Horizontal", 2),
    Sketcher.Constraint("Vertical", 3),
    Sketcher.Constraint("DistanceX", -1, 1, 2, 2, 50.850898),
    Sketcher.Constraint("DistanceX", 0, 2, 0, 1, 4.061706),
    Sketcher.Constraint("DistanceY", 1, 2, 1, 1, 6.104333),
    Sketcher.Constraint("DistanceY", -1, 1, 0, 2, 46.508731),
])
pocket6 = body.newObject("PartDesign::Pocket", "Pocket005")
pocket6.Profile = sketch16
pocket6.Length = Q("0.6 in")

sketch17 = body.newObject("Sketcher::SketchObject", "Sketch016")
sketch17.AttachmentSupport = (doc.getObject("XZ_Plane"), [""])
sketch17.MapMode = "FlatFace"
sketch17.AttachmentOffset = App.Placement(App.Vector(0, 0, -1.6 * 25.4), App.Rotation())
sketch17.addGeometry([
    Part.LineSegment(App.Vector(36.5, -29.8, 0), App.Vector(36.5, 108.8, 0)),
    Part.LineSegment(App.Vector(36.5, 108.8, 0), App.Vector(38.2, 108.8, 0)),
    Part.LineSegment(App.Vector(38.2, 108.8, 0), App.Vector(38.2, -29.8, 0)),
    Part.LineSegment(App.Vector(38.2, -29.8, 0), App.Vector(36.5, -29.8, 0)),
], False)
sketch17.addConstraint([
    Sketcher.Constraint("Coincident", 0, 2, 1, 1),
    Sketcher.Constraint("Coincident", 1, 2, 2, 1),
    Sketcher.Constraint("Coincident", 2, 2, 3, 1),
    Sketcher.Constraint("Coincident", 3, 2, 0, 1),
    Sketcher.Constraint("Vertical", 0),
    Sketcher.Constraint("Horizontal", 1),
    Sketcher.Constraint("Vertical", 2),
    Sketcher.Constraint("Horizontal", 3),
    Sketcher.Constraint("DistanceX", 1, 1, 1, 2, 1.70662),
    Sketcher.Constraint("DistanceY", 0, 1, 0, 2, 138.679816),
    Sketcher.Constraint("DistanceX", -1, 1, 1, 2, 38.179812),
    Sketcher.Constraint("DistanceY", 2, 2, -1, 1, 29.846549),
])
pocket7 = body.newObject("PartDesign::Pocket", "Pocket006")
pocket7.Profile = sketch17
pocket7.Length = Q("1.5 in")
pocket7.Reversed = True

sketch18 = body.newObject("Sketcher::SketchObject", "Sketch017")
sketch18.AttachmentSupport = (doc.getObject("XY_Plane"), [""])
sketch18.MapMode = "FlatFace"
sketch18.AttachmentOffset = App.Placement(App.Vector(0, 0, -32.942912), App.Rotation())
sketch18.addGeometry([
    Part.LineSegment(App.Vector(-35, 25, 0), App.Vector(-35, 4, 0)),
    Part.LineSegment(App.Vector(-35, 4, 0), App.Vector(-40, 4, 0)),
    Part.LineSegment(App.Vector(-40, 4, 0), App.Vector(-40, 25, 0)),
    Part.LineSegment(App.Vector(-40, 25, 0), App.Vector(-35, 25, 0)),
], False)
sketch18.addConstraint([
    Sketcher.Constraint("Coincident", 0, 2, 1, 1),
    Sketcher.Constraint("Coincident", 1, 2, 2, 1),
    Sketcher.Constraint("Coincident", 2, 2, 3, 1),
    Sketcher.Constraint("Coincident", 3, 2, 0, 1),
    Sketcher.Constraint("Vertical", 0),
    Sketcher.Constraint("Horizontal", 1),
    Sketcher.Constraint("Vertical", 2),
    Sketcher.Constraint("Horizontal", 3),
    Sketcher.Constraint("DistanceY", -1, 1, 2, 2, Q("1 in")),
    Sketcher.Constraint("DistanceY", 0, 2, 0, 1, Q("0.86 in")),
    Sketcher.Constraint("DistanceX", 1, 2, 1, 1, 5.678435),
    Sketcher.Constraint("DistanceX", 0, 2, -1, 1, 34.606532),
])
pocket8 = body.newObject("PartDesign::Pocket", "Pocket007")
pocket8.Profile = sketch18
pocket8.Length = Q("1.5 in")
pocket8.Reversed = True

sketch19 = body.newObject("Sketcher::SketchObject", "Sketch018")
sketch19.AttachmentSupport = (doc.getObject("YZ_Plane"), [""])
sketch19.MapMode = "FlatFace"
sketch19.AttachmentOffset = App.Placement(App.Vector(0, 0, 39.013192), App.Rotation())
sketch19.addGeometry([
    Part.LineSegment(App.Vector(3, 52, 0), App.Vector(3, -33, 0)),
    Part.LineSegment(App.Vector(3, -33, 0), App.Vector(11, -33, 0)),
    Part.LineSegment(App.Vector(11, -33, 0), App.Vector(11, 52, 0)),
    Part.LineSegment(App.Vector(11, 52, 0), App.Vector(3, 52, 0)),
], False)
sketch19.addConstraint([
    Sketcher.Constraint("Coincident", 0, 2, 1, 1),
    Sketcher.Constraint("Coincident", 1, 2, 2, 1),
    Sketcher.Constraint("Coincident", 2, 2, 3, 1),
    Sketcher.Constraint("Coincident", 3, 2, 0, 1),
    Sketcher.Constraint("Vertical", 0),
    Sketcher.Constraint("Horizontal", 1),
    Sketcher.Constraint("Vertical", 2),
    Sketcher.Constraint("Horizontal", 3),
    Sketcher.Constraint("DistanceY", 0, 2, 0, 1, 84.935412),
    Sketcher.Constraint("DistanceY", -1, 1, 2, 2, 51.9925),
    Sketcher.Constraint("DistanceX", 1, 1, 1, 2, 7.539536),
    Sketcher.Constraint("DistanceX", -1, 1, 1, 2, 10.759982),
])
pocket9 = body.newObject("PartDesign::Pocket", "Pocket008")
pocket9.Profile = sketch19
pocket9.Length = Q("0.1 in")

sketch20 = body.newObject("Sketcher::SketchObject", "Sketch019")
sketch20.AttachmentSupport = (doc.getObject("XZ_Plane"), [""])
sketch20.MapMode = "FlatFace"
sketch20.AttachmentOffset = App.Placement(App.Vector(0, 0, -1.6 * 25.4), App.Rotation())
sketch20.addGeometry([
    Part.LineSegment(App.Vector(-72.1, 108.8, 0), App.Vector(-72.1, 109.9, 0)),
    Part.LineSegment(App.Vector(-72.1, 109.9, 0), App.Vector(38.2, 109.9, 0)),
    Part.LineSegment(App.Vector(38.2, 109.9, 0), App.Vector(38.2, 108.8, 0)),
    Part.LineSegment(App.Vector(38.2, 108.8, 0), App.Vector(-72.1, 108.8, 0)),
], False)
sketch20.addConstraint([
    Sketcher.Constraint("Coincident", 0, 2, 1, 1),
    Sketcher.Constraint("Coincident", 1, 2, 2, 1),
    Sketcher.Constraint("Coincident", 2, 2, 3, 1),
    Sketcher.Constraint("Coincident", 3, 2, 0, 1),
    Sketcher.Constraint("Vertical", 0),
    Sketcher.Constraint("Horizontal", 1),
    Sketcher.Constraint("Vertical", 2),
    Sketcher.Constraint("Horizontal", 3),
    Sketcher.Constraint("DistanceY", 0, 1, 0, 2, 1.116448),
    Sketcher.Constraint("DistanceX", 1, 1, 1, 2, 110.260357),
    Sketcher.Constraint("DistanceX", -1, 1, 1, 2, 38.179812),
    Sketcher.Constraint("DistanceY", -1, 1, 0, 2, 109.949715),
])
pocket10 = body.newObject("PartDesign::Pocket", "Pocket009")
pocket10.Profile = sketch20
pocket10.Length = Q("1.5 in")
pocket10.Reversed = True

sketch21 = body.newObject("Sketcher::SketchObject", "Sketch020")
sketch21.AttachmentSupport = (doc.getObject("XY_Plane"), [""])
sketch21.MapMode = "FlatFace"
sketch21.AttachmentOffset = App.Placement(App.Vector(0, 0, -29.846549), App.Rotation())
sketch21.addGeometry([
    Part.LineSegment(App.Vector(36.5, 25.4, 0), App.Vector(36.5, 10.8, 0)),
    Part.LineSegment(App.Vector(36.5, 10.8, 0), App.Vector(38.2, 10.8, 0)),
    Part.LineSegment(App.Vector(38.2, 10.8, 0), App.Vector(38.2, 25.4, 0)),
    Part.LineSegment(App.Vector(38.2, 25.4, 0), App.Vector(36.5, 25.4, 0)),
], False)
sketch21.addConstraint([
    Sketcher.Constraint("Coincident", 0, 2, 1, 1),
    Sketcher.Constraint("Coincident", 1, 2, 2, 1),
    Sketcher.Constraint("Coincident", 2, 2, 3, 1),
    Sketcher.Constraint("Coincident", 3, 2, 0, 1),
    Sketcher.Constraint("Vertical", 0),
    Sketcher.Constraint("Horizontal", 1),
    Sketcher.Constraint("Vertical", 2),
    Sketcher.Constraint("Horizontal", 3),
    Sketcher.Constraint("DistanceY", -1, 1, 2, 2, Q("1 in")),
    Sketcher.Constraint("DistanceX", 1, 1, 1, 2, 1.70662),
    Sketcher.Constraint("DistanceY", 0, 2, 0, 1, 14.640018),
    Sketcher.Constraint("DistanceX", -1, 1, 1, 2, 38.179812),
])
pocket11 = body.newObject("PartDesign::Pocket", "Pocket010")
pocket11.Profile = sketch21
pocket11.Length = Q("0.16 in")

sketch22 = body.newObject("Sketcher::SketchObject", "Sketch021")
sketch22.AttachmentSupport = (doc.getObject("XZ_Plane"), [""])
sketch22.MapMode = "FlatFace"
sketch22.AttachmentOffset = App.Placement(App.Vector(0, 0, -3.220445), App.Rotation())
sketch22.addGeometry([
    Part.LineSegment(App.Vector(38.2, 52, 0), App.Vector(39, 52, 0)),
    Part.LineSegment(App.Vector(39, 52, 0), App.Vector(39, -29.9, 0)),
    Part.LineSegment(App.Vector(39, -29.9, 0), App.Vector(38.2, -29.8, 0)),
    Part.LineSegment(App.Vector(38.2, -29.8, 0), App.Vector(38.2, 52, 0)),
], False)
sketch22.addConstraint([
    Sketcher.Constraint("Coincident", 0, 2, 1, 1),
    Sketcher.Constraint("Coincident", 1, 2, 2, 1),
    Sketcher.Constraint("Coincident", 2, 2, 3, 1),
    Sketcher.Constraint("Coincident", 3, 2, 0, 1),
    Sketcher.Constraint("Horizontal", 0),
    Sketcher.Constraint("Vertical", 1),
    Sketcher.Constraint("Vertical", 3),
    Sketcher.Constraint("DistanceX", 0, 1, 0, 2, 0.83338),
    Sketcher.Constraint("DistanceY", 1, 2, 1, 1, 81.892468),
    Sketcher.Constraint("DistanceY", 3, 1, 3, 2, 81.839049),
    Sketcher.Constraint("DistanceY", -1, 1, 0, 2, 51.9925),
    Sketcher.Constraint("DistanceX", -1, 1, 2, 2, 38.179812),
])
pocket12 = body.newObject("PartDesign::Pocket", "Pocket011")
pocket12.Profile = sketch22
pocket12.Length = Q("0.03 in")
pocket12.Reversed = True

doc.recompute()
